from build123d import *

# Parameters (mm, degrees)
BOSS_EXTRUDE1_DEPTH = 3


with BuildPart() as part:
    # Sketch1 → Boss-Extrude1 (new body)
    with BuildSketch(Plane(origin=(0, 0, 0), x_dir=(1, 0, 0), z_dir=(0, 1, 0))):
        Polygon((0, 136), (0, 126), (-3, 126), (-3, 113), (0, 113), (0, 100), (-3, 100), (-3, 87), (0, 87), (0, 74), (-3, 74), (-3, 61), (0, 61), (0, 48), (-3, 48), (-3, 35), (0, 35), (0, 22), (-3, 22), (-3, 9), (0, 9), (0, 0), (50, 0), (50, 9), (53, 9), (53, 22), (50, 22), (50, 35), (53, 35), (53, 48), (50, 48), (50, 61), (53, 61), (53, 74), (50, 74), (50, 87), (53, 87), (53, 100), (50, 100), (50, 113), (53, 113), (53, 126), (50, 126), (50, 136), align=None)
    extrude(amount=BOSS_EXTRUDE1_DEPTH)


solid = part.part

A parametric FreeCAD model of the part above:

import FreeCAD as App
import Part
import Sketcher


def add_polygon(sketch, points):
    """Adds a closed chain of lines whose ends are joined by coincident constraints."""
    first, n = sketch.GeometryCount, len(points)
    for a, b in zip(points, points[1:] + points[:1]):
        sketch.addGeometry(Part.LineSegment(App.Vector(*a, 0), App.Vector(*b, 0)), False)
    for i in range(n):
        sketch.addConstraint(Sketcher.Constraint("Coincident", first + i, 2, first + (i + 1) % n, 1))

doc = App.newDocument("Part")
body = doc.addObject("PartDesign::Body", "Body")

# Sketch on XZ plane
sketch1 = doc.addObject("Sketcher::SketchObject", "Sketch")
body.addObject(sketch1)
sketch1.AttachmentSupport = (doc.XZ_Plane, [""])
sketch1.MapMode = "FlatFace"
add_polygon(sketch1, [(0, -136), (0, -126), (-3, -126), (-3, -113), (0, -113), (0, -100), (-3, -100), (-3, -87), (0, -87), (0, -74), (-3, -74), (-3, -61), (0, -61), (0, -48), (-3, -48), (-3, -35), (0, -35), (0, -22), (-3, -22), (-3, -9), (0, -9), (0, 0), (50, 0), (50, -9), (53, -9), (53, -22), (50, -22), (50, -35), (53, -35), (53, -48), (50, -48), (50, -61), (53, -61), (53, -74), (50, -74), (50, -87), (53, -87), (53, -100), (50, -100), (50, -113), (53, -113), (53, -126), (50, -126), (50, -136)])  # lines 0-43
sketch1.addConstraint([
    Sketcher.Constraint("Vertical", 0),
    Sketcher.Constraint("Horizontal", 1),
    Sketcher.Constraint("Vertical", 2),
    Sketcher.Constraint("Horizontal", 3),
    Sketcher.Constraint("Vertical", 4),
    Sketcher.Constraint("Horizontal", 5),
    Sketcher.Constraint("Vertical", 6),
    Sketcher.Constraint("Horizontal", 7),
    Sketcher.Constraint("Vertical", 8),
    Sketcher.Constraint("Horizontal", 9),
    Sketcher.Constraint("Vertical", 10),
    Sketcher.Constraint("Horizontal", 11),
    Sketcher.Constraint("Vertical", 12),
    Sketcher.Constraint("Horizontal", 13),
    Sketcher.Constraint("Vertical", 14),
    Sketcher.Constraint("Horizontal", 15),
    Sketcher.Constraint("Vertical", 16),
    Sketcher.Constraint("Horizontal", 17),
    Sketcher.Constraint("Vertical", 18),
    Sketcher.Constraint("Horizontal", 19),
    Sketcher.Constraint("Vertical", 20),
    Sketcher.Constraint("Horizontal", 21),
    Sketcher.Constraint("Vertical", 22),
    Sketcher.Constraint("Horizontal", 23),
    Sketcher.Constraint("Vertical", 24),
    Sketcher.Constraint("Horizontal", 25),
    Sketcher.Constraint("Vertical", 26),
    Sketcher.Constraint("Horizontal", 27),
    Sketcher.Constraint("Vertical", 28),
    Sketcher.Constraint("Horizontal", 29),
    Sketcher.Constraint("Vertical", 30),
    Sketcher.Constraint("Horizontal", 31),
    Sketcher.Constraint("Vertical", 32),
    Sketcher.Constraint("Horizontal", 33),
    Sketcher.Constraint("Vertical", 34),
    Sketcher.Constraint("Horizontal", 35),
    Sketcher.Constraint("Vertical", 36),
    Sketcher.Constraint("Horizontal", 37),
    Sketcher.Constraint("Vertical", 38),
    Sketcher.Constraint("Horizontal", 39),
    Sketcher.Constraint("Vertical", 40),
    Sketcher.Constraint("Horizontal", 41),
    Sketcher.Constraint("Vertical", 42),
    Sketcher.Constraint("Horizontal", 43),
    Sketcher.Constraint("Coincident", 20, 2, -1, 1),
    Sketcher.Constraint("PointOnObject", 0, 2, -2),
    Sketcher.Constraint("PointOnObject", 3, 2, -2),
    Sketcher.Constraint("PointOnObject", 7, 2, -2),
    Sketcher.Constraint("PointOnObject", 11, 2, -2),
    Sketcher.Constraint("PointOnObject", 15, 2, -2),
    Sketcher.Constraint("Horizontal", 19, 2, 22, 2),
    Sketcher.Constraint("Horizontal", 17, 2, 24, 2),
    Sketcher.Constraint("Horizontal", 15, 2, 26, 2),
    Sketcher.Constraint("Horizontal", 13, 2, 28, 2),
    Sketcher.Constraint("Horizontal", 11, 2, 30, 2),
    Sketcher.Constraint("Horizontal", 9, 2, 32, 2),
    Sketcher.Constraint("Horizontal", 7, 2, 34, 2),
    Sketcher.Constraint("Horizontal", 5, 2, 36, 2),
    Sketcher.Constraint("Horizontal", 3, 2, 38, 2),
    Sketcher.Constraint("Horizontal", 1, 2, 40, 2),
    Sketcher.Constraint("Vertical", 2, 2, 5, 2),
    Sketcher.Constraint("Vertical", 6, 2, 9, 2),
    Sketcher.Constraint("Vertical", 10, 2, 13, 2),
    Sketcher.Constraint("Vertical", 14, 2, 17, 2),
    Sketcher.Constraint("Vertical", 22, 2, 25, 2),
    Sketcher.Constraint("Vertical", 24, 2, 27, 2),
    Sketcher.Constraint("Vertical", 26, 2, 29, 2),
    Sketcher.Constraint("Vertical", 28, 2, 31, 2),
    Sketcher.Constraint("Vertical", 30, 2, 33, 2),
    Sketcher.Constraint("Vertical", 32, 2, 35, 2),
    Sketcher.Constraint("Vertical", 34, 2, 37, 2),
    Sketcher.Constraint("Vertical", 36, 2, 39, 2),
    Sketcher.Constraint("Vertical", 38, 2, 41, 2),
    Sketcher.Constraint("Equal", 19, 23),
    Sketcher.Constraint("Equal", 2, 4),
    Sketcher.Constraint("Equal", 4, 6),
    Sketcher.Constraint("Equal", 6, 8),
    Sketcher.Constraint("Equal", 8, 10),
    Sketcher.Constraint("Equal", 10, 12),
    Sketcher.Constraint("Equal", 12, 14),
    Sketcher.Constraint("Equal", 14, 16),
    Sketcher.Constraint("Equal", 16, 18),
    Sketcher.Constraint("DistanceX", 1, 2, 1, 1, 3.0),
    Sketcher.Constraint("DistanceX", 21, 1, 21, 2, 50.0),
    Sketcher.Constraint("DistanceY", 0, 1, 0, 2, 10.0),
    Sketcher.Constraint("DistanceY", 2, 1, 2, 2, 13.0),
    Sketcher.Constraint("DistanceY", 20, 1, 20, 2, 9.0),
])
pad1 = doc.addObject("PartDesign::Pad", "Pad")
body.addObject(pad1)
pad1.Profile = sketch1
pad1.Length = 3
pad1.Reversed = True

doc.recompute()
